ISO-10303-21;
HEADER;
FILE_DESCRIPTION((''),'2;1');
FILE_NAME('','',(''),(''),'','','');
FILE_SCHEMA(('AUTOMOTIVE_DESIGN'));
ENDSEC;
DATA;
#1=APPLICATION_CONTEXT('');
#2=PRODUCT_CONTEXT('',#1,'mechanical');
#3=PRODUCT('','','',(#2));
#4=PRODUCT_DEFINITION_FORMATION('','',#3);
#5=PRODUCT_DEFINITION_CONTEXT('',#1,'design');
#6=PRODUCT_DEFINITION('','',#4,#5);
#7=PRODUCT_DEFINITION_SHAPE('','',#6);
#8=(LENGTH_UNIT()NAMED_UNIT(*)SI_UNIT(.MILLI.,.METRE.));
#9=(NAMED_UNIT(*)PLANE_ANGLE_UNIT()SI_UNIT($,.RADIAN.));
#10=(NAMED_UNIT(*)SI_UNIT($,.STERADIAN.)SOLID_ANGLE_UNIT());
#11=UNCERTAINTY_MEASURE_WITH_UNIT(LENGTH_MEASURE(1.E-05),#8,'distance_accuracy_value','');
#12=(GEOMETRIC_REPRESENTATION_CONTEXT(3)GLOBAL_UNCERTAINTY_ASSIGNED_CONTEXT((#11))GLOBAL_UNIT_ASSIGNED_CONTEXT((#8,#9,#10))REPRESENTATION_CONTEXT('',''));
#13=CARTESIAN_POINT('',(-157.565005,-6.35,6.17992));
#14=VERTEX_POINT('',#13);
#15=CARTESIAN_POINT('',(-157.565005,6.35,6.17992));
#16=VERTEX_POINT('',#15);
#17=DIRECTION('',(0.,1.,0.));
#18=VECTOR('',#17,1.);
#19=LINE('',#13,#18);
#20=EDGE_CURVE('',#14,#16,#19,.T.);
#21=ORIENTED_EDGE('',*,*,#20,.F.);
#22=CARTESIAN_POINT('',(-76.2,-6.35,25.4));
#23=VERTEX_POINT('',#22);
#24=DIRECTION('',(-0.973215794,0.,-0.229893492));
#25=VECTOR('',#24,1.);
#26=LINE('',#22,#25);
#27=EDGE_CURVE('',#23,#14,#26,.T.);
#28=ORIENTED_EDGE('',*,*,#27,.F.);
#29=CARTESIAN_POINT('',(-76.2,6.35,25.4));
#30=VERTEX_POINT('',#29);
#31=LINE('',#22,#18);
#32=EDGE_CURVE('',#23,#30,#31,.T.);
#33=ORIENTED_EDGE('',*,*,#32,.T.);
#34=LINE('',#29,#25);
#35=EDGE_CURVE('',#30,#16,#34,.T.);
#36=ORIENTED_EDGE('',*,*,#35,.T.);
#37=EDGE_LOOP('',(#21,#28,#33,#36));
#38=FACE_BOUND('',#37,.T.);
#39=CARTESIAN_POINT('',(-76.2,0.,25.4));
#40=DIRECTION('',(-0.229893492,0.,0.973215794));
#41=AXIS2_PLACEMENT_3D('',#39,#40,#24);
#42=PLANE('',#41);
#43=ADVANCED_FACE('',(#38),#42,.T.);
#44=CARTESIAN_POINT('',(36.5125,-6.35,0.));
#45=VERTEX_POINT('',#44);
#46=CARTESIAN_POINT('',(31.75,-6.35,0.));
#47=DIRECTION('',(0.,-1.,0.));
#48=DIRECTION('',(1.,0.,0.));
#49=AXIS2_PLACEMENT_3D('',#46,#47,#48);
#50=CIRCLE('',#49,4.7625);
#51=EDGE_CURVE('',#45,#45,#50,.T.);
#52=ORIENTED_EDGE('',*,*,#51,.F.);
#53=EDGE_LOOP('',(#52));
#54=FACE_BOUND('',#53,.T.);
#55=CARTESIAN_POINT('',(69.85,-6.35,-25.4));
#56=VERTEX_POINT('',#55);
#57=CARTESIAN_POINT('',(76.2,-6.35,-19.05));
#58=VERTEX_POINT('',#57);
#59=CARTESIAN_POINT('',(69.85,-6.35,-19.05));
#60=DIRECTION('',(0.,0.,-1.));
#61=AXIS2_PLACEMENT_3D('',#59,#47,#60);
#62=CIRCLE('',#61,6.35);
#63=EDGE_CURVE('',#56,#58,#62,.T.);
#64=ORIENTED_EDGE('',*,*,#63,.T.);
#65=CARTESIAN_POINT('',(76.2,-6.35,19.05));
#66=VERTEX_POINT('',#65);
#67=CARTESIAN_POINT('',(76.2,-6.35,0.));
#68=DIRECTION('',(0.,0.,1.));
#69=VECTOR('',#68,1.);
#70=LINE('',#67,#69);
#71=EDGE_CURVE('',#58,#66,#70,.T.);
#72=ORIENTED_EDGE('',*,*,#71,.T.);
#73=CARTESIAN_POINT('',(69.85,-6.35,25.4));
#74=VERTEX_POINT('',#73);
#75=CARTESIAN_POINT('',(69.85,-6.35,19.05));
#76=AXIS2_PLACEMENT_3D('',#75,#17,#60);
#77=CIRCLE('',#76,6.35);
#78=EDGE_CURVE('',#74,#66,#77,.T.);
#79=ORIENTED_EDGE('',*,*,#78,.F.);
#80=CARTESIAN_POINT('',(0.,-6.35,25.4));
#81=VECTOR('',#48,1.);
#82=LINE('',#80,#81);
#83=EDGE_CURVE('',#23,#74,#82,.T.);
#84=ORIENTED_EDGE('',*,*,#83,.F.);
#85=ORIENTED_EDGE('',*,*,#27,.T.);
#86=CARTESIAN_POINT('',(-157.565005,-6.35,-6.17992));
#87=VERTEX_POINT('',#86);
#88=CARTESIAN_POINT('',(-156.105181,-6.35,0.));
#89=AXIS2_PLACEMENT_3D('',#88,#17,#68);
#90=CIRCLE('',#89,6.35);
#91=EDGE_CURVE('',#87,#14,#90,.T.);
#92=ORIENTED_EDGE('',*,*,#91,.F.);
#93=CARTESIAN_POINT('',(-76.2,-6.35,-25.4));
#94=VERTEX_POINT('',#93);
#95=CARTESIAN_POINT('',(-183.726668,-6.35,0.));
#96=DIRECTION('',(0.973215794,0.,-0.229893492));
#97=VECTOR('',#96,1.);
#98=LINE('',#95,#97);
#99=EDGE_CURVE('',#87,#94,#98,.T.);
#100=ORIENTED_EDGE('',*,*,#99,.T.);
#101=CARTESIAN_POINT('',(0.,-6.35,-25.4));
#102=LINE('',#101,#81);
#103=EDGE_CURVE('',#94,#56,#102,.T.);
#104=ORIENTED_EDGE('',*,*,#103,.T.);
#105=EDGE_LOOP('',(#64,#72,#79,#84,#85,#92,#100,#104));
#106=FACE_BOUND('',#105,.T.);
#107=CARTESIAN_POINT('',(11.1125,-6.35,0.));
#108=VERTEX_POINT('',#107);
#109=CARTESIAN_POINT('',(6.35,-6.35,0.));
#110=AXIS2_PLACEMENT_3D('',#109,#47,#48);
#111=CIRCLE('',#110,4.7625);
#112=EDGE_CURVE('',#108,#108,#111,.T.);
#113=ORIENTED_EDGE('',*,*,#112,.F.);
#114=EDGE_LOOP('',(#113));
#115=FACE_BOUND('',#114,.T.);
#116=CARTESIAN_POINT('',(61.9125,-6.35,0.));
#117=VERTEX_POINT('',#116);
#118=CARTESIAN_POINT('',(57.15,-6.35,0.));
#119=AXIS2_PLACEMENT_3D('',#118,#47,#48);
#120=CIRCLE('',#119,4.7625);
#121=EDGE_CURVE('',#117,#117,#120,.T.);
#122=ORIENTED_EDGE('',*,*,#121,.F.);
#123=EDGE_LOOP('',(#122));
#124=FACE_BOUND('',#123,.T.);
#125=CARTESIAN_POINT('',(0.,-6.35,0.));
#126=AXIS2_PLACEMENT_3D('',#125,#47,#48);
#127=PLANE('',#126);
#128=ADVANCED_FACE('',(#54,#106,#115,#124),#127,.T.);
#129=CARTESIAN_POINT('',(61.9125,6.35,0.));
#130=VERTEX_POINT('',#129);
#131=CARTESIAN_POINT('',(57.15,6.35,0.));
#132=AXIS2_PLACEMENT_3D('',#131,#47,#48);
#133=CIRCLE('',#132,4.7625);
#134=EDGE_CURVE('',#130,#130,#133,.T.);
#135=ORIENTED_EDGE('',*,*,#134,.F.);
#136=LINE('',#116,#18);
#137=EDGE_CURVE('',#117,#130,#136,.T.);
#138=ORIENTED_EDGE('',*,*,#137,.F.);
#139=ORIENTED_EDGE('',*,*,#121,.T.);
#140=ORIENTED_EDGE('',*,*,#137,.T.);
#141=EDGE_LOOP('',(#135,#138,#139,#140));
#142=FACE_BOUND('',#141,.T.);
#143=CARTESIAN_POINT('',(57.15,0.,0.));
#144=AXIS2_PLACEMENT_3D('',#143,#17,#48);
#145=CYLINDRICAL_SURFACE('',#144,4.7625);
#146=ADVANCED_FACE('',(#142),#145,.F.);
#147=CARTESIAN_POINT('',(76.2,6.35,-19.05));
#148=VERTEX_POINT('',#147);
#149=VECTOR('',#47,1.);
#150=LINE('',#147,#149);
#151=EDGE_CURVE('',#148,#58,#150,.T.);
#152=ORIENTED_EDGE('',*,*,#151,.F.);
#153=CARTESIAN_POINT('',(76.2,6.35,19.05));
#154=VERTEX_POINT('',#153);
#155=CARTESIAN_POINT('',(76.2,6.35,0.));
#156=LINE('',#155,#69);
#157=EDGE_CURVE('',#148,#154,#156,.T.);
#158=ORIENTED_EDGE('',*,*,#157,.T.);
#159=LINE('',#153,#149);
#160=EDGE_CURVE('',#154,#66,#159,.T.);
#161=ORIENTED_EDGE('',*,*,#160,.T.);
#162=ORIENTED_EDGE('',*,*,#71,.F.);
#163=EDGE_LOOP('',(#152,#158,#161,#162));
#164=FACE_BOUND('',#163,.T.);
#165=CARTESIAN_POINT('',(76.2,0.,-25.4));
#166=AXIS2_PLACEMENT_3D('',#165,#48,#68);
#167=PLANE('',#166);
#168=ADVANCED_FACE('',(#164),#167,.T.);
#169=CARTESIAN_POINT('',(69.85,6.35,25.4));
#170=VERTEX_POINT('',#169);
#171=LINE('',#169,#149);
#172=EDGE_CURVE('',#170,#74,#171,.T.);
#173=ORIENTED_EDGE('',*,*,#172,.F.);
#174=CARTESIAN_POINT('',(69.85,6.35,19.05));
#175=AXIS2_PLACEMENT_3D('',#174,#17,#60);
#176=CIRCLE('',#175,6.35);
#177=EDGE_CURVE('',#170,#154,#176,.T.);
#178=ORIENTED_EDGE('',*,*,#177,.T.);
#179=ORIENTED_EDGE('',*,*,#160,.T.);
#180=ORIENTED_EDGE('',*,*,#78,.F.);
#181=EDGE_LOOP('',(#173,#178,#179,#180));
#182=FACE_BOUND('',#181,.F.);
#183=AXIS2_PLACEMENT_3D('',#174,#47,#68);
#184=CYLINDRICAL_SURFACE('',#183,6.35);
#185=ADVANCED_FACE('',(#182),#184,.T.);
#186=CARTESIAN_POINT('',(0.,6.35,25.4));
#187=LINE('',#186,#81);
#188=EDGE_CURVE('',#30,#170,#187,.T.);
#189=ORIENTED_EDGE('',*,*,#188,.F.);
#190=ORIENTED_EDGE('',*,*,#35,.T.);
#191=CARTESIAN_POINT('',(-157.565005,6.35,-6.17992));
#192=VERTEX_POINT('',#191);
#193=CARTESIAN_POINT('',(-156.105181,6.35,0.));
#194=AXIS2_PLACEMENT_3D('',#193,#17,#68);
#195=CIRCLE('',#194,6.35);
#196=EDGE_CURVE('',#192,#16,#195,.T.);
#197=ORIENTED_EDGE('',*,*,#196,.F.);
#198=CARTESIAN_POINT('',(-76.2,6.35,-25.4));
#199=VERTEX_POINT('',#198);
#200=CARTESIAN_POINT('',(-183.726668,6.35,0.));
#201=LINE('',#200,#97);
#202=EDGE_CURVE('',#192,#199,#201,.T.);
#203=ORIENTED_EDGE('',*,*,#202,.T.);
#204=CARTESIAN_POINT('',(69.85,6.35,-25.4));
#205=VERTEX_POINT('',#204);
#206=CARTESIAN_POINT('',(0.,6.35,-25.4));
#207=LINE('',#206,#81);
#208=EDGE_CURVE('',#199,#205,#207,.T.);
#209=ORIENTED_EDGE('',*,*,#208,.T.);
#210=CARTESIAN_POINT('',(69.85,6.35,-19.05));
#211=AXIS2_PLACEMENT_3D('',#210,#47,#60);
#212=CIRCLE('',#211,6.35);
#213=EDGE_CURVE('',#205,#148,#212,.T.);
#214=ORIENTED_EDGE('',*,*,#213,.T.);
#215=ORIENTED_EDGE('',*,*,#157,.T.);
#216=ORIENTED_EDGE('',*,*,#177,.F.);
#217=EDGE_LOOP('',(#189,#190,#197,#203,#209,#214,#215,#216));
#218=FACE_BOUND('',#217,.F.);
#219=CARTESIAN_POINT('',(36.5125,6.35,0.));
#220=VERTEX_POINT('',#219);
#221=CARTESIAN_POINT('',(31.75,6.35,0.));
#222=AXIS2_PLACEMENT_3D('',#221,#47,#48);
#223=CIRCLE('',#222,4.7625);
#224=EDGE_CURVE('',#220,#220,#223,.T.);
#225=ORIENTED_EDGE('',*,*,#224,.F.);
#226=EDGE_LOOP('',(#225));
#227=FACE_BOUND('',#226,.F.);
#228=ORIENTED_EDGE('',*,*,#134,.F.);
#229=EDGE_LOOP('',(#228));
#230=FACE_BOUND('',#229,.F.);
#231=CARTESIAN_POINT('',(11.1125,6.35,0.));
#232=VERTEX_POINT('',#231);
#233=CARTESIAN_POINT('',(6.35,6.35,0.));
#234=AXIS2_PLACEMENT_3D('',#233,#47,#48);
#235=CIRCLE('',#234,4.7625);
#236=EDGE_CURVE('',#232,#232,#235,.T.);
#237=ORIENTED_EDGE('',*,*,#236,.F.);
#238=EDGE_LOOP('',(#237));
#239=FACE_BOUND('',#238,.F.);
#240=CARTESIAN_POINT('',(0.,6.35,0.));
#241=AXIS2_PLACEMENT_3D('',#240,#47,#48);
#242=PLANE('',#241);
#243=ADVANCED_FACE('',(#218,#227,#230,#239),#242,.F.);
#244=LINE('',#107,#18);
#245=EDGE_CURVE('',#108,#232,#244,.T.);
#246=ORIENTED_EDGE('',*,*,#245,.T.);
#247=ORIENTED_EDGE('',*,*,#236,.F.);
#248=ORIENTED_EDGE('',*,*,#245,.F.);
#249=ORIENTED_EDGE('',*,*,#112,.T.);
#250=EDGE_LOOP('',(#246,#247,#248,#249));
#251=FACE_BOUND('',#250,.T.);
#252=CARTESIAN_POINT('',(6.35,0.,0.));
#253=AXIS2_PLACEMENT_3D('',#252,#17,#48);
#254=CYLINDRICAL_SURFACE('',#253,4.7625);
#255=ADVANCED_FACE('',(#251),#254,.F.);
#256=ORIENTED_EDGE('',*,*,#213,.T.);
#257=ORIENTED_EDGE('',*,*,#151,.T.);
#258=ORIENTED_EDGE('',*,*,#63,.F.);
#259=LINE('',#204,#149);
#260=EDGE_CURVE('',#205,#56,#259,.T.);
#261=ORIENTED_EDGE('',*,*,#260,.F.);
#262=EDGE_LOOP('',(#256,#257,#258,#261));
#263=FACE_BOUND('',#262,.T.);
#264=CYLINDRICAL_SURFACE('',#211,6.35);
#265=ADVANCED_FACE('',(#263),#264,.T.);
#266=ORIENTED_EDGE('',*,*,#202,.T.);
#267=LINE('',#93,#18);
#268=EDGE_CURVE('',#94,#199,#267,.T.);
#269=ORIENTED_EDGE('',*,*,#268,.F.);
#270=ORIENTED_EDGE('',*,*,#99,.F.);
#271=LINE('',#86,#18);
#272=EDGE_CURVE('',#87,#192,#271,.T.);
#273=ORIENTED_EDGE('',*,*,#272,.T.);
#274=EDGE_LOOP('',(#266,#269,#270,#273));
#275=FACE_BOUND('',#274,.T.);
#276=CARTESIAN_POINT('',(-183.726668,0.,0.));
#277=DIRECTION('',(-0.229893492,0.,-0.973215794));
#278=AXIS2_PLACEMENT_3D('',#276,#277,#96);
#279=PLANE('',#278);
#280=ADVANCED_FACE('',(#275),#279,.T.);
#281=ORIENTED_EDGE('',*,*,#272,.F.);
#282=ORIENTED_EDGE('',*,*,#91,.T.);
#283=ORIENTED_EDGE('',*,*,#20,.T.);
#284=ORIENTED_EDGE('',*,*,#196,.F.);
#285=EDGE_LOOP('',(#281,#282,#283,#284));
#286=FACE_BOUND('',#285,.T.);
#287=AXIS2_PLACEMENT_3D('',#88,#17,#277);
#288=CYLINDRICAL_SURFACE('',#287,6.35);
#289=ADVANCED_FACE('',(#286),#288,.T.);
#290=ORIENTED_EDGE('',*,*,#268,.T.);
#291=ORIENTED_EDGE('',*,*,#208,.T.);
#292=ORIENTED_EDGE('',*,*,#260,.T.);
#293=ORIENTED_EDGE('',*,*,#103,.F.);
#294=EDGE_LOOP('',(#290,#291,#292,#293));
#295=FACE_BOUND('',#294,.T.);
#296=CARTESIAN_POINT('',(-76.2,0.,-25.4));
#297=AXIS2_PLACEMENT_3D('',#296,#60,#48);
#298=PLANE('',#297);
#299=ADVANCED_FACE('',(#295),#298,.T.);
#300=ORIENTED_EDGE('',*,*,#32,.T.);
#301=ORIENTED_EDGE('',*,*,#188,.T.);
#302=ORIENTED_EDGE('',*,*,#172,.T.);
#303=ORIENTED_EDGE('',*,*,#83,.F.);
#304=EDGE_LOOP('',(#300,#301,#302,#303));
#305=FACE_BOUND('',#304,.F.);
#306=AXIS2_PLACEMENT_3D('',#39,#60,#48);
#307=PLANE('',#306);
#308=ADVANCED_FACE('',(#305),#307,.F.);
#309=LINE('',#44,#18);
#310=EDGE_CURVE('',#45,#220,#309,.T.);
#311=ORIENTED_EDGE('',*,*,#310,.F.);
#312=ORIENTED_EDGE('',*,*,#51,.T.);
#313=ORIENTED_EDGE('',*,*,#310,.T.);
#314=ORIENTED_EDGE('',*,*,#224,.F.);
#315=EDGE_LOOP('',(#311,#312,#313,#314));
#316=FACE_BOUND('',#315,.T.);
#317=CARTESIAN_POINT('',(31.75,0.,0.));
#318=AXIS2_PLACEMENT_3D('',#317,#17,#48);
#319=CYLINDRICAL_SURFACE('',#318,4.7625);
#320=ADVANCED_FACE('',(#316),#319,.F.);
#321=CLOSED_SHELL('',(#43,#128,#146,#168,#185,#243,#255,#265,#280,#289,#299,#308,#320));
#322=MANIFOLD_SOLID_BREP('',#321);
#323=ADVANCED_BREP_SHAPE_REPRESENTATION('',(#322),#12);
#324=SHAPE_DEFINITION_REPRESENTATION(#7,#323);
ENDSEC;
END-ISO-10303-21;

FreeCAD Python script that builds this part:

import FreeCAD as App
import Part
import Sketcher

V = App.Vector
Q = App.Units.Quantity


def edges_at(feature, points):
    """Names of the edges that pass closest to the given points."""
    edges = feature.Shape.Edges
    near = lambda p: min(range(len(edges)), key=lambda i: edges[i].distToShape(Part.Vertex(*p))[0])
    return sorted({f"Edge{near(p) + 1}" for p in points})

doc = App.newDocument("Part")
body = doc.addObject("PartDesign::Body", "Body")

sketch1 = body.newObject("Sketcher::SketchObject", "Sketch")
sketch1.AttachmentSupport = (doc.getObject("XZ_Plane"), [""])
sketch1.MapMode = "FlatFace"
sketch1.addGeometry([
    Part.LineSegment(V(-76.2, -25.4, 0), V(76.2, -25.4, 0)),
    Part.LineSegment(V(76.2, -25.4, 0), V(76.2, 25.4, 0)),
    Part.LineSegment(V(76.2, 25.4, 0), V(-76.2, 25.4, 0)),
    Part.LineSegment(V(-76.2, 25.4, 0), V(-183.726668, 0, 0)),
    Part.LineSegment(V(-183.726668, 0, 0), V(-76.2, -25.4, 0)),
    Part.Circle(V(6.35, 0, 0), V(0, 0, 1), 4.7625),
    Part.Circle(V(31.75, 0, 0), V(0, 0, 1), 4.7625),
    Part.Circle(V(57.15, 0, 0), V(0, 0, 1), 4.7625),
], False)
sketch1.addConstraint([
    Sketcher.Constraint("Coincident", 0, 2, 1, 1),
    Sketcher.Constraint("Coincident", 1, 2, 2, 1),
    Sketcher.Constraint("Coincident", 2, 2, 3, 1),
    Sketcher.Constraint("Coincident", 3, 2, 4, 1),
    Sketcher.Constraint("Coincident", 4, 2, 0, 1),
    Sketcher.Constraint("Horizontal", 0),
    Sketcher.Constraint("Vertical", 1),
    Sketcher.Constraint("Horizontal", 2),
    Sketcher.Constraint("Equal", 5, 6),
    Sketcher.Constraint("Equal", 6, 7),
    Sketcher.Constraint("Symmetric", 0, 2, 2, 2, -1, 1),
    Sketcher.Constraint("PointOnObject", 5, 3, -1),
    Sketcher.Constraint("PointOnObject", 6, 3, -1),
    Sketcher.Constraint("PointOnObject", 7, 3, -1),
    Sketcher.Constraint("PointOnObject", 3, 2, -1),
    Sketcher.Constraint("Vertical", 2, 2, 4, 2),
    Sketcher.Constraint("DistanceX", 0, 1, 0, 2, Q("6 in")),
    Sketcher.Constraint("DistanceY", 1, 1, 1, 2, Q("2 in")),
    Sketcher.Constraint("Diameter", 5, Q("0.375 in")),
    Sketcher.Constraint("DistanceX", 5, 3, 6, 3, Q("1 in")),
    Sketcher.Constraint("DistanceX", 6, 3, 7, 3, Q("1 in")),
    Sketcher.Constraint("DistanceX", -1, 1, 5, 3, Q("0.25 in")),
    Sketcher.Constraint("DistanceX", 3, 2, 7, 3, 240.876668),
])
pad1 = body.newObject("PartDesign::Pad", "Pad")
pad1.Profile = sketch1
pad1.Length = Q("0.5 in")
pad1.Midplane = True
doc.recompute()

fillet = body.newObject("PartDesign::Fillet", "Fillet")
fillet.Base = (pad1, edges_at(pad1, [(-183.727, 0, 0), (76.2, 0, 25.4), (76.2, 0, -25.4)]))
fillet.Radius = Q("0.25 in")

doc.recompute()
